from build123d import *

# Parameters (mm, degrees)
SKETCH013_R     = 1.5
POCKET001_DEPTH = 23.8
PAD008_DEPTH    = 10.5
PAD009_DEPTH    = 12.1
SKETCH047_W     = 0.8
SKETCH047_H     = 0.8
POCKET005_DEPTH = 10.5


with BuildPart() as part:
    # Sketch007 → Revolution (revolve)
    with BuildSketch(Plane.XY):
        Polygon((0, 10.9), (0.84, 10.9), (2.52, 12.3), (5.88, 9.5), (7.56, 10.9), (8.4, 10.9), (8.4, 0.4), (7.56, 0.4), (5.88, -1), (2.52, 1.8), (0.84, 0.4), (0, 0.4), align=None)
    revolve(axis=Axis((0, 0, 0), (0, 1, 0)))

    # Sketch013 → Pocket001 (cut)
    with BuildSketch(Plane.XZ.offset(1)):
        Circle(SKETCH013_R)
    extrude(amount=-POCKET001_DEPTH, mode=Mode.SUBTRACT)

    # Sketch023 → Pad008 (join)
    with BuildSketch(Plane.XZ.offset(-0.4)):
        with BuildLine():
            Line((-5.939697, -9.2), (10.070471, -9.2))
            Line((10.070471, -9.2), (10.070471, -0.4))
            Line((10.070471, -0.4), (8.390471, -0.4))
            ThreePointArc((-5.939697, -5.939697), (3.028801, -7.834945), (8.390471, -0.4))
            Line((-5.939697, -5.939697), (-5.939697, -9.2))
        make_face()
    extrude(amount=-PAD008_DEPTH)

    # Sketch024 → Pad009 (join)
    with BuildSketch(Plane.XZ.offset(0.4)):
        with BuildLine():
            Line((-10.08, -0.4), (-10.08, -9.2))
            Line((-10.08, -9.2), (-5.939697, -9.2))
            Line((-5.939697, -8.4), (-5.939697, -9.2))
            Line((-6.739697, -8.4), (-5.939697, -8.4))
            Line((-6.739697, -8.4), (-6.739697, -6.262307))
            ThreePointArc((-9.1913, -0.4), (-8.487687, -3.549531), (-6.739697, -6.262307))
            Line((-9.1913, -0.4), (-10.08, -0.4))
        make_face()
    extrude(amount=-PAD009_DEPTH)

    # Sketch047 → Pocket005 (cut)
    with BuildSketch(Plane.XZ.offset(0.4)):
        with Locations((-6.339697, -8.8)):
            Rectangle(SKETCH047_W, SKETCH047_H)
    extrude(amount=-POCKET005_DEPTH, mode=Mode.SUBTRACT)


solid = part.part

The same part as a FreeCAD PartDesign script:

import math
import FreeCAD as App
import Part
import Sketcher

V = App.Vector


def add_polygon(sketch, points):
    """Adds a closed chain of lines whose ends are joined by coincident constraints."""
    first, n = sketch.GeometryCount, len(points)
    for a, b in zip(points, points[1:] + points[:1]):
        sketch.addGeometry(Part.LineSegment(App.Vector(*a, 0), App.Vector(*b, 0)), False)
    for i in range(n):
        sketch.addConstraint(Sketcher.Constraint("Coincident", first + i, 2, first + (i + 1) % n, 1))

doc = App.newDocument("Part")
body = doc.addObject("PartDesign::Body", "Body")

# Sketch on XY plane
sketch1 = body.newObject("Sketcher::SketchObject", "Sketch")
sketch1.AttachmentSupport = (doc.getObject("XY_Plane"), [""])
sketch1.MapMode = "FlatFace"
add_polygon(sketch1, [(0.8, 10.9), (0, 10.9), (0, 0.4), (0.8, 0.4), (2.5, 1.8), (5.9, -1), (7.6, 0.4), (8.4, 0.4), (8.4, 10.9), (7.6, 10.9), (5.9, 9.5), (2.5, 12.3)])  # lines 0-11
sketch1.addConstraint(Sketcher.Constraint("Horizontal", 0))
sketch1.addConstraint(Sketcher.Constraint("Vertical", 1))
sketch1.addConstraint(Sketcher.Constraint("Horizontal", 2))
sketch1.addConstraint(Sketcher.Constraint("Horizontal", 6))
sketch1.addConstraint(Sketcher.Constraint("Vertical", 7))
sketch1.addConstraint(Sketcher.Constraint("Horizontal", 8))
sketch1.addConstraint(Sketcher.Constraint("PointOnObject", 0, 2, -2))
sketch1.addConstraint(Sketcher.Constraint("Parallel", 3, 5))
sketch1.addConstraint(Sketcher.Constraint("Parallel", 5, 9))
sketch1.addConstraint(Sketcher.Constraint("Parallel", 4, 10))
sketch1.addConstraint(Sketcher.Constraint("Parallel", 9, 11))
sketch1.addConstraint(Sketcher.Constraint("Horizontal", 2, 2, 5, 2))
sketch1.addConstraint(Sketcher.Constraint("Horizontal", 0, 2, 7, 2))
sketch1.addConstraint(Sketcher.Constraint("Vertical", 5, 2, 8, 2))
sketch1.addConstraint(Sketcher.Constraint("Vertical", 4, 2, 9, 2))
sketch1.addConstraint(Sketcher.Constraint("Vertical", 3, 2, 10, 2))
sketch1.addConstraint(Sketcher.Constraint("Equal", 2, 6))
sketch1.addConstraint(Sketcher.Constraint("Equal", 3, 5))
sketch1.addConstraint(Sketcher.Constraint("DistanceY", 1, 2, 1, 1, 10.5))
sketch1.addConstraint(Sketcher.Constraint("DistanceY", 4, 2, -1, 1, 1.0))
sketch1.addConstraint(Sketcher.Constraint("DistanceX", 0, 2, 0, 1, 0.84))
sketch1.addConstraint(Sketcher.Constraint("DistanceY", -1, 1, 0, 2, 10.9))
sketch1.addConstraint(Sketcher.Constraint("DistanceX", -1, 1, 6, 2, 8.4))
sketch1.addConstraint(Sketcher.Constraint("DistanceX", -1, 1, 3, 2, 2.52))
revolution = body.newObject("PartDesign::Revolution", "Revolution")
revolution.Profile = sketch1
revolution.ReferenceAxis = (sketch1, ["V_Axis"])
revolution.Angle = 360

# Sketch on XZ plane
sketch2 = body.newObject("Sketcher::SketchObject", "Sketch001")
sketch2.AttachmentSupport = (doc.getObject("XZ_Plane"), [""])
sketch2.MapMode = "FlatFace"
sketch2.AttachmentOffset = App.Placement(V(0, 0, 1), App.Rotation())
sketch2.addGeometry(Part.Circle(V(0, 0, 0), V(0, 0, 1), 1.5), False)
sketch2.addConstraint(Sketcher.Constraint("Coincident", 0, 3, -1, 1))
sketch2.addConstraint(Sketcher.Constraint("Diameter", 0, 3.0))
pocket1 = body.newObject("PartDesign::Pocket", "Pocket")
pocket1.Profile = sketch2
pocket1.Length = 23.8

# Sketch on XZ plane
sketch3 = body.newObject("Sketcher::SketchObject", "Sketch002")
sketch3.AttachmentSupport = (doc.getObject("XZ_Plane"), [""])
sketch3.MapMode = "FlatFace"
sketch3.AttachmentOffset = App.Placement(V(0, 0, -0.4), App.Rotation())
sketch3.addGeometry(Part.LineSegment(V(-5.9, -9.2, 0), V(10.1, -9.2, 0)), False)
sketch3.addGeometry(Part.LineSegment(V(10.1, -9.2, 0), V(10.1, -0.4, 0)), False)
sketch3.addGeometry(Part.LineSegment(V(10.1, -0.4, 0), V(8.4, -0.4, 0)), False)
sketch3.addGeometry(Part.ArcOfCircle(Part.Circle(V(0, 0, 0), V(0, 0, 1), 8.4), math.radians(-135), math.radians(-3)), False)
sketch3.addGeometry(Part.LineSegment(V(-5.9, -5.9, 0), V(-5.9, -9.2, 0)), False)
sketch3.addConstraint(Sketcher.Constraint("Coincident", 0, 2, 1, 1))
sketch3.addConstraint(Sketcher.Constraint("Coincident", 1, 2, 2, 1))
sketch3.addConstraint(Sketcher.Constraint("Coincident", 2, 2, 3, 2))
sketch3.addConstraint(Sketcher.Constraint("Coincident", 3, 1, 4, 1))
sketch3.addConstraint(Sketcher.Constraint("Coincident", 4, 2, 0, 1))
sketch3.addConstraint(Sketcher.Constraint("Horizontal", 0))
sketch3.addConstraint(Sketcher.Constraint("Vertical", 1))
sketch3.addConstraint(Sketcher.Constraint("Horizontal", 2))
sketch3.addConstraint(Sketcher.Constraint("Vertical", 4))
sketch3.addConstraint(Sketcher.Constraint("Coincident", 3, 3, -1, 1))
sketch3.addConstraint(Sketcher.Constraint("Radius", 3, 8.4))
sketch3.addConstraint(Sketcher.Constraint("DistanceY", 1, 1, 1, 2, 8.8))
sketch3.addConstraint(Sketcher.Constraint("DistanceX", 2, 2, 2, 1, 1.68))
sketch3.addConstraint(Sketcher.Constraint("DistanceY", 0, 2, -1, 1, 9.2))
sketch3.addConstraint(Sketcher.Constraint("DistanceX", 0, 1, 0, 2, 16.010168))
pad1 = body.newObject("PartDesign::Pad", "Pad")
pad1.Profile = sketch3
pad1.Length = 10.5
pad1.Reversed = True

# Sketch on XZ plane
sketch4 = body.newObject("Sketcher::SketchObject", "Sketch003")
sketch4.AttachmentSupport = (doc.getObject("XZ_Plane"), [""])
sketch4.MapMode = "FlatFace"
sketch4.AttachmentOffset = App.Placement(V(0, 0, 0.4), App.Rotation())
sketch4.addGeometry(Part.LineSegment(V(-10.1, -0.4, 0), V(-10.1, -9.2, 0)), False)
sketch4.addGeometry(Part.LineSegment(V(-10.1, -9.2, 0), V(-5.9, -9.2, 0)), False)
sketch4.addGeometry(Part.LineSegment(V(-5.9, -9.2, 0), V(-5.9, -8.4, 0)), False)
sketch4.addGeometry(Part.LineSegment(V(-5.9, -8.4, 0), V(-6.7, -8.4, 0)), False)
sketch4.addGeometry(Part.LineSegment(V(-6.7, -8.4, 0), V(-6.7, -6.3, 0)), False)
sketch4.addGeometry(Part.ArcOfCircle(Part.Circle(V(0, 0, 0), V(0, 0, 1), 9.2), math.radians(-178), math.radians(-137)), False)
sketch4.addGeometry(Part.LineSegment(V(-9.2, -0.4, 0), V(-10.1, -0.4, 0)), False)
sketch4.addConstraint(Sketcher.Constraint("Coincident", 0, 2, 1, 1))
sketch4.addConstraint(Sketcher.Constraint("Coincident", 1, 2, 2, 1))
sketch4.addConstraint(Sketcher.Constraint("Coincident", 2, 2, 3, 1))
sketch4.addConstraint(Sketcher.Constraint("Coincident", 3, 2, 4, 1))
sketch4.addConstraint(Sketcher.Constraint("Coincident", 4, 2, 5, 2))
sketch4.addConstraint(Sketcher.Constraint("Coincident", 5, 1, 6, 1))
sketch4.addConstraint(Sketcher.Constraint("Coincident", 6, 2, 0, 1))
sketch4.addConstraint(Sketcher.Constraint("Vertical", 0))
sketch4.addConstraint(Sketcher.Constraint("Horizontal", 1))
sketch4.addConstraint(Sketcher.Constraint("Vertical", 2))
sketch4.addConstraint(Sketcher.Constraint("Horizontal", 3))
sketch4.addConstraint(Sketcher.Constraint("Vertical", 4))
sketch4.addConstraint(Sketcher.Constraint("Horizontal", 6))
sketch4.addConstraint(Sketcher.Constraint("Coincident", 5, 3, -1, 1))
sketch4.addConstraint(Sketcher.Constraint("Equal", 3, 2))
sketch4.addConstraint(Sketcher.Constraint("Radius", 5, 9.199999))
sketch4.addConstraint(Sketcher.Constraint("DistanceX", 3, 2, 3, 1, 0.8))
sketch4.addConstraint(Sketcher.Constraint("DistanceY", 0, 2, 0, 1, 8.8))
sketch4.addConstraint(Sketcher.Constraint("DistanceY", 0, 2, -1, 1, 9.2))
sketch4.addConstraint(Sketcher.Constraint("DistanceX", 0, 2, -1, 1, 10.08))
sketch4.addConstraint(Sketcher.Constraint("DistanceX", 1, 1, 1, 2, 4.140303))
pad2 = body.newObject("PartDesign::Pad", "Pad001")
pad2.Profile = sketch4
pad2.Length = 12.1
pad2.Reversed = True

# Sketch on XZ plane
sketch5 = body.newObject("Sketcher::SketchObject", "Sketch004")
sketch5.AttachmentSupport = (doc.getObject("XZ_Plane"), [""])
sketch5.MapMode = "FlatFace"
sketch5.AttachmentOffset = App.Placement(V(0, 0, 0.4), App.Rotation())
add_polygon(sketch5, [(-6.7, -8.4), (-6.7, -9.2), (-5.9, -9.2), (-5.9, -8.4)])  # lines 0-3
sketch5.addConstraint(Sketcher.Constraint("Vertical", 0))
sketch5.addConstraint(Sketcher.Constraint("Horizontal", 1))
sketch5.addConstraint(Sketcher.Constraint("Vertical", 2))
sketch5.addConstraint(Sketcher.Constraint("Horizontal", 3))
sketch5.addConstraint(Sketcher.Constraint("Equal", 3, 0))
sketch5.addConstraint(Sketcher.Constraint("DistanceX", 1, 1, 1, 2, 0.8))
sketch5.addConstraint(Sketcher.Constraint("DistanceY", 0, 2, -1, 1, 9.2))
sketch5.addConstraint(Sketcher.Constraint("DistanceX", 0, 2, -1, 1, 6.739697))
pocket2 = body.newObject("PartDesign::Pocket", "Pocket001")
pocket2.Profile = sketch5
pocket2.Length = 10.5

doc.recompute()
